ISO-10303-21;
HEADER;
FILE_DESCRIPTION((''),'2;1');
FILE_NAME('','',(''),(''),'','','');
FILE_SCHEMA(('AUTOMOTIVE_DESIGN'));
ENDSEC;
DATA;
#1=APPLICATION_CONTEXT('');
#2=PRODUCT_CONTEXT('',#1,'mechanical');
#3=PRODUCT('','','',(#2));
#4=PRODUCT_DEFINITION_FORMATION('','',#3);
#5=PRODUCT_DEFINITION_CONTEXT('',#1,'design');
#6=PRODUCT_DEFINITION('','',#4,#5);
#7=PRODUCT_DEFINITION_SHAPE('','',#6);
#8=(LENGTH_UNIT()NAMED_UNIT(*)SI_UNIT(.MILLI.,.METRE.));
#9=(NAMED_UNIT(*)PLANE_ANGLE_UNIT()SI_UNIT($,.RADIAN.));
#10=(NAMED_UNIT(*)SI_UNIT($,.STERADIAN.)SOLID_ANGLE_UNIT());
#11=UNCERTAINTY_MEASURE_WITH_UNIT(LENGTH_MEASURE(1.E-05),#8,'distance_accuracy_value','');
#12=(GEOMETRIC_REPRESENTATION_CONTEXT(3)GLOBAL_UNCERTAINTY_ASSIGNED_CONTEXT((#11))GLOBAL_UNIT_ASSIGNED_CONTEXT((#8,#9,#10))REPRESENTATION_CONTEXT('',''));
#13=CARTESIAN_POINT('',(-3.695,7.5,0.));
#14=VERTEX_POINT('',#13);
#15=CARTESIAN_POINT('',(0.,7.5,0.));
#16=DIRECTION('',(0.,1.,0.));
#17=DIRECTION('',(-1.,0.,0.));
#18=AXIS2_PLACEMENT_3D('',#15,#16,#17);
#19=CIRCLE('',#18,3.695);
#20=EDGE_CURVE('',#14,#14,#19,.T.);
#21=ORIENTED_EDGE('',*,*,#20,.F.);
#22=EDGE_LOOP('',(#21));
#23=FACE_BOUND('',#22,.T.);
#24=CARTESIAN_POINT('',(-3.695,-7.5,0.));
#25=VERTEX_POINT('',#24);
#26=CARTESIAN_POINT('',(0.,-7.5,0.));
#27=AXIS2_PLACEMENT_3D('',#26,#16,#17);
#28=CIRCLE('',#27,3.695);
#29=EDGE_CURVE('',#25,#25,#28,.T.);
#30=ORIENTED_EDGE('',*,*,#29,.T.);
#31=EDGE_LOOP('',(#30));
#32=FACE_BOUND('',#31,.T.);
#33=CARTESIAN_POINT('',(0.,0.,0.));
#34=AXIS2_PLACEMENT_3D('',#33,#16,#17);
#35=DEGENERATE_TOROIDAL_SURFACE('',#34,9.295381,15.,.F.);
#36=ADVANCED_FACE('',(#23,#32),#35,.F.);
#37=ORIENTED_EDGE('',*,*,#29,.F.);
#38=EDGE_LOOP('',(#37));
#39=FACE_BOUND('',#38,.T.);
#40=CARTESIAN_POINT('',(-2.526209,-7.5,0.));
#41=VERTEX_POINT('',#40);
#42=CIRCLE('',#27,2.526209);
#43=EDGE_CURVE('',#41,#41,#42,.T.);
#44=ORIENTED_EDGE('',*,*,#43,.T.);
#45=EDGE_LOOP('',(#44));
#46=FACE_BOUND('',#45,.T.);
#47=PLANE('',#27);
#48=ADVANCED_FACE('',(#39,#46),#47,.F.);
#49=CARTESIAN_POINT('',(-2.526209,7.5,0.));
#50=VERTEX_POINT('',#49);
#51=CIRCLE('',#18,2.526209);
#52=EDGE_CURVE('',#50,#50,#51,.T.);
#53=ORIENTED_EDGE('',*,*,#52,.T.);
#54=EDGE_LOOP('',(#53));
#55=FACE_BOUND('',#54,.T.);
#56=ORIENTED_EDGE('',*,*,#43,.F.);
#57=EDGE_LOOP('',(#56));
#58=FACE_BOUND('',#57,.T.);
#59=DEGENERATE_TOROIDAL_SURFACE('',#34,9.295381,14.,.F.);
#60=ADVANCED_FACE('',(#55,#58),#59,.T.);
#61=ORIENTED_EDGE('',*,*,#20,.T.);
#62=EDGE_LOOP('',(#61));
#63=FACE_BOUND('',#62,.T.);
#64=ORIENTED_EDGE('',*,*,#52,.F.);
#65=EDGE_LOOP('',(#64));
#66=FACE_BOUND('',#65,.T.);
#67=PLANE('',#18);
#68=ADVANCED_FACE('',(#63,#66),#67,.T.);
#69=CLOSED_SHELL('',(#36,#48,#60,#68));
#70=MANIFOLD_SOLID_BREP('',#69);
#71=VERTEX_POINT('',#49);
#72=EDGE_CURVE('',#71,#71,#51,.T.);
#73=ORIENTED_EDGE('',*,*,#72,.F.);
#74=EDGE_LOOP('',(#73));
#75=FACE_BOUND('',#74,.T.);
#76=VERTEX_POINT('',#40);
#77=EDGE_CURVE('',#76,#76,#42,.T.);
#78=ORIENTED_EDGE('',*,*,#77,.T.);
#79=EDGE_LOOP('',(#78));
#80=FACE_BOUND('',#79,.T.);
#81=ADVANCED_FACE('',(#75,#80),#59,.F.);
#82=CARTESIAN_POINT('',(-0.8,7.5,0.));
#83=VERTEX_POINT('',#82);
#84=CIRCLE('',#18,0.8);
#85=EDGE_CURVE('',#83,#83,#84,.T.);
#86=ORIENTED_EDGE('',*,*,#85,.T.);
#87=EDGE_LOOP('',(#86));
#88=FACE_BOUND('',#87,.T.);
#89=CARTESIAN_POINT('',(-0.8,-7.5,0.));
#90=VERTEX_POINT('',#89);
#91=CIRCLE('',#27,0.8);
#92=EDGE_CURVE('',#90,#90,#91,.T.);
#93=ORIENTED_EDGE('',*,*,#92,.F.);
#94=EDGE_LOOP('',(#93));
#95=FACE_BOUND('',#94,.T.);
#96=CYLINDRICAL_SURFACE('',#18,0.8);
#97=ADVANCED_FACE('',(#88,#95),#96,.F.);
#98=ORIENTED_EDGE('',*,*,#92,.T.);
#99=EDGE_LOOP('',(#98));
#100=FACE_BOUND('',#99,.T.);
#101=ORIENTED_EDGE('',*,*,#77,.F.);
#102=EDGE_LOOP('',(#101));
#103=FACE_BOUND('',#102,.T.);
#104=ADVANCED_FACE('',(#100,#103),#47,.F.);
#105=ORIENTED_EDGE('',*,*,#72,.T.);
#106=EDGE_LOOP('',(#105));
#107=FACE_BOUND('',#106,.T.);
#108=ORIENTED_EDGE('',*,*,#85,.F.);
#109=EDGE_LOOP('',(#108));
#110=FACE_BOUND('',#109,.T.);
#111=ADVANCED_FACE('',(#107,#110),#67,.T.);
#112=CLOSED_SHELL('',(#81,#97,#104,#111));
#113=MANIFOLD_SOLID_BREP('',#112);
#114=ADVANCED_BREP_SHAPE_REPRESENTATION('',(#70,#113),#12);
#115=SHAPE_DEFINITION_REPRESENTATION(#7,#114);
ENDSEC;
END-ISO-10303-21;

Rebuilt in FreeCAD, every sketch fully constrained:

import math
import FreeCAD as App
import Part
import Sketcher

V = App.Vector

doc = App.newDocument("Part")
params = doc.addObject("Spreadsheet::Sheet", "Params")
for row, (alias, value) in enumerate([
    ("sketch1_radius", "14 mm"),
    ("sketch1_height", "15 mm"),
    ("revolution_angle", "360 deg"),
    ("sketch2_radius", "14 mm"),
    ("sketch2_radius2", "15 mm"),
    ("revolution2_angle", "360 deg"),
], start=1):
    params.set(f"A{row}", alias)
    params.set(f"B{row}", "=" + value)
    params.setAlias(f"B{row}", alias)

body = doc.addObject("PartDesign::Body", "Body")

# Sketch on XY plane
sketch1 = body.newObject("Sketcher::SketchObject", "Sketch")
sketch1.AttachmentSupport = (doc.getObject("XY_Plane"), [""])
sketch1.MapMode = "FlatFace"
sketch1.addGeometry(Part.LineSegment(V(-2.5, -7.5, 0), V(-0.8, -7.5, 0)), False)
sketch1.addGeometry(Part.LineSegment(V(-0.8, -7.5, 0), V(-0.8, 7.5, 0)), False)
sketch1.addGeometry(Part.LineSegment(V(-0.8, 7.5, 0), V(-2.5, 7.5, 0)), False)
sketch1.addGeometry(Part.ArcOfCircle(Part.Circle(V(9.3, 0, 0), V(0, 0, 1), 14), math.radians(148), math.radians(212)), False)
sketch1.addConstraint(Sketcher.Constraint("Coincident", 0, 2, 1, 1))
sketch1.addConstraint(Sketcher.Constraint("Coincident", 1, 2, 2, 1))
sketch1.addConstraint(Sketcher.Constraint("Coincident", 2, 2, 3, 1))
sketch1.addConstraint(Sketcher.Constraint("Coincident", 3, 2, 0, 1))
sketch1.addConstraint(Sketcher.Constraint("Horizontal", 0))
sketch1.addConstraint(Sketcher.Constraint("Vertical", 1))
sketch1.addConstraint(Sketcher.Constraint("Horizontal", 2))
sketch1.addConstraint(Sketcher.Constraint("Symmetric", 2, 2, 3, 2, -1))
sketch1.addConstraint(Sketcher.Constraint("Radius", 3, 14.0))
sketch1.addConstraint(Sketcher.Constraint("DistanceY", 1, 1, 1, 2, 15.0))
sketch1.addConstraint(Sketcher.Constraint("DistanceX", 0, 2, -1, 1, 0.8))
sketch1.addConstraint(Sketcher.Constraint("DistanceX", 0, 1, 0, 2, 1.726209))
sketch1.setExpression("Constraints[8]", "Params.sketch1_radius")
sketch1.setExpression("Constraints[9]", "Params.sketch1_height")
revolution = body.newObject("PartDesign::Revolution", "Revolution")
revolution.Profile = sketch1
revolution.ReferenceAxis = (sketch1, ["V_Axis"])
revolution.setExpression("Angle", "Params.revolution_angle")
body2 = doc.addObject("PartDesign::Body", "Body001")

# Sketch on XY plane
sketch2 = body2.newObject("Sketcher::SketchObject", "Sketch001")
sketch2.AttachmentSupport = (doc.getObject("XY_Plane001"), [""])
sketch2.MapMode = "FlatFace"
sketch2.addGeometry(Part.LineSegment(V(-3.7, -7.5, 0), V(-2.5, -7.5, 0)), False)
sketch2.addGeometry(Part.ArcOfCircle(Part.Circle(V(9.3, 0, 0), V(0, 0, 1), 14), math.radians(148), math.radians(212)), False)
sketch2.addGeometry(Part.LineSegment(V(-2.5, 7.5, 0), V(-3.7, 7.5, 0)), False)
sketch2.addGeometry(Part.ArcOfCircle(Part.Circle(V(9.3, 0, 0), V(0, 0, 1), 15), math.radians(150), math.radians(210)), False)
sketch2.addConstraint(Sketcher.Constraint("Coincident", 0, 2, 1, 2))
sketch2.addConstraint(Sketcher.Constraint("Coincident", 1, 1, 2, 1))
sketch2.addConstraint(Sketcher.Constraint("Coincident", 2, 2, 3, 1))
sketch2.addConstraint(Sketcher.Constraint("Coincident", 3, 2, 0, 1))
sketch2.addConstraint(Sketcher.Constraint("Horizontal", 0))
sketch2.addConstraint(Sketcher.Constraint("Horizontal", 2))
sketch2.addConstraint(Sketcher.Constraint("Coincident", 3, 3, 1, 3))
sketch2.addConstraint(Sketcher.Constraint("Symmetric", 0, 2, 1, 1, -1))
sketch2.addConstraint(Sketcher.Constraint("Radius", 1, 14.0))
sketch2.addConstraint(Sketcher.Constraint("Radius", 3, 15.0))
sketch2.addConstraint(Sketcher.Constraint("DistanceY", 0, 2, 1, 1, 15.0))
sketch2.addConstraint(Sketcher.Constraint("DistanceX", 2, 2, -1, 1, 3.695))
sketch2.setExpression("Constraints[8]", "Params.sketch2_radius")
sketch2.setExpression("Constraints[9]", "Params.sketch2_radius2")
revolution2 = body2.newObject("PartDesign::Revolution", "Revolution001")
revolution2.Profile = sketch2
revolution2.ReferenceAxis = (sketch2, ["V_Axis"])
revolution2.setExpression("Angle", "Params.revolution2_angle")

doc.recompute()
